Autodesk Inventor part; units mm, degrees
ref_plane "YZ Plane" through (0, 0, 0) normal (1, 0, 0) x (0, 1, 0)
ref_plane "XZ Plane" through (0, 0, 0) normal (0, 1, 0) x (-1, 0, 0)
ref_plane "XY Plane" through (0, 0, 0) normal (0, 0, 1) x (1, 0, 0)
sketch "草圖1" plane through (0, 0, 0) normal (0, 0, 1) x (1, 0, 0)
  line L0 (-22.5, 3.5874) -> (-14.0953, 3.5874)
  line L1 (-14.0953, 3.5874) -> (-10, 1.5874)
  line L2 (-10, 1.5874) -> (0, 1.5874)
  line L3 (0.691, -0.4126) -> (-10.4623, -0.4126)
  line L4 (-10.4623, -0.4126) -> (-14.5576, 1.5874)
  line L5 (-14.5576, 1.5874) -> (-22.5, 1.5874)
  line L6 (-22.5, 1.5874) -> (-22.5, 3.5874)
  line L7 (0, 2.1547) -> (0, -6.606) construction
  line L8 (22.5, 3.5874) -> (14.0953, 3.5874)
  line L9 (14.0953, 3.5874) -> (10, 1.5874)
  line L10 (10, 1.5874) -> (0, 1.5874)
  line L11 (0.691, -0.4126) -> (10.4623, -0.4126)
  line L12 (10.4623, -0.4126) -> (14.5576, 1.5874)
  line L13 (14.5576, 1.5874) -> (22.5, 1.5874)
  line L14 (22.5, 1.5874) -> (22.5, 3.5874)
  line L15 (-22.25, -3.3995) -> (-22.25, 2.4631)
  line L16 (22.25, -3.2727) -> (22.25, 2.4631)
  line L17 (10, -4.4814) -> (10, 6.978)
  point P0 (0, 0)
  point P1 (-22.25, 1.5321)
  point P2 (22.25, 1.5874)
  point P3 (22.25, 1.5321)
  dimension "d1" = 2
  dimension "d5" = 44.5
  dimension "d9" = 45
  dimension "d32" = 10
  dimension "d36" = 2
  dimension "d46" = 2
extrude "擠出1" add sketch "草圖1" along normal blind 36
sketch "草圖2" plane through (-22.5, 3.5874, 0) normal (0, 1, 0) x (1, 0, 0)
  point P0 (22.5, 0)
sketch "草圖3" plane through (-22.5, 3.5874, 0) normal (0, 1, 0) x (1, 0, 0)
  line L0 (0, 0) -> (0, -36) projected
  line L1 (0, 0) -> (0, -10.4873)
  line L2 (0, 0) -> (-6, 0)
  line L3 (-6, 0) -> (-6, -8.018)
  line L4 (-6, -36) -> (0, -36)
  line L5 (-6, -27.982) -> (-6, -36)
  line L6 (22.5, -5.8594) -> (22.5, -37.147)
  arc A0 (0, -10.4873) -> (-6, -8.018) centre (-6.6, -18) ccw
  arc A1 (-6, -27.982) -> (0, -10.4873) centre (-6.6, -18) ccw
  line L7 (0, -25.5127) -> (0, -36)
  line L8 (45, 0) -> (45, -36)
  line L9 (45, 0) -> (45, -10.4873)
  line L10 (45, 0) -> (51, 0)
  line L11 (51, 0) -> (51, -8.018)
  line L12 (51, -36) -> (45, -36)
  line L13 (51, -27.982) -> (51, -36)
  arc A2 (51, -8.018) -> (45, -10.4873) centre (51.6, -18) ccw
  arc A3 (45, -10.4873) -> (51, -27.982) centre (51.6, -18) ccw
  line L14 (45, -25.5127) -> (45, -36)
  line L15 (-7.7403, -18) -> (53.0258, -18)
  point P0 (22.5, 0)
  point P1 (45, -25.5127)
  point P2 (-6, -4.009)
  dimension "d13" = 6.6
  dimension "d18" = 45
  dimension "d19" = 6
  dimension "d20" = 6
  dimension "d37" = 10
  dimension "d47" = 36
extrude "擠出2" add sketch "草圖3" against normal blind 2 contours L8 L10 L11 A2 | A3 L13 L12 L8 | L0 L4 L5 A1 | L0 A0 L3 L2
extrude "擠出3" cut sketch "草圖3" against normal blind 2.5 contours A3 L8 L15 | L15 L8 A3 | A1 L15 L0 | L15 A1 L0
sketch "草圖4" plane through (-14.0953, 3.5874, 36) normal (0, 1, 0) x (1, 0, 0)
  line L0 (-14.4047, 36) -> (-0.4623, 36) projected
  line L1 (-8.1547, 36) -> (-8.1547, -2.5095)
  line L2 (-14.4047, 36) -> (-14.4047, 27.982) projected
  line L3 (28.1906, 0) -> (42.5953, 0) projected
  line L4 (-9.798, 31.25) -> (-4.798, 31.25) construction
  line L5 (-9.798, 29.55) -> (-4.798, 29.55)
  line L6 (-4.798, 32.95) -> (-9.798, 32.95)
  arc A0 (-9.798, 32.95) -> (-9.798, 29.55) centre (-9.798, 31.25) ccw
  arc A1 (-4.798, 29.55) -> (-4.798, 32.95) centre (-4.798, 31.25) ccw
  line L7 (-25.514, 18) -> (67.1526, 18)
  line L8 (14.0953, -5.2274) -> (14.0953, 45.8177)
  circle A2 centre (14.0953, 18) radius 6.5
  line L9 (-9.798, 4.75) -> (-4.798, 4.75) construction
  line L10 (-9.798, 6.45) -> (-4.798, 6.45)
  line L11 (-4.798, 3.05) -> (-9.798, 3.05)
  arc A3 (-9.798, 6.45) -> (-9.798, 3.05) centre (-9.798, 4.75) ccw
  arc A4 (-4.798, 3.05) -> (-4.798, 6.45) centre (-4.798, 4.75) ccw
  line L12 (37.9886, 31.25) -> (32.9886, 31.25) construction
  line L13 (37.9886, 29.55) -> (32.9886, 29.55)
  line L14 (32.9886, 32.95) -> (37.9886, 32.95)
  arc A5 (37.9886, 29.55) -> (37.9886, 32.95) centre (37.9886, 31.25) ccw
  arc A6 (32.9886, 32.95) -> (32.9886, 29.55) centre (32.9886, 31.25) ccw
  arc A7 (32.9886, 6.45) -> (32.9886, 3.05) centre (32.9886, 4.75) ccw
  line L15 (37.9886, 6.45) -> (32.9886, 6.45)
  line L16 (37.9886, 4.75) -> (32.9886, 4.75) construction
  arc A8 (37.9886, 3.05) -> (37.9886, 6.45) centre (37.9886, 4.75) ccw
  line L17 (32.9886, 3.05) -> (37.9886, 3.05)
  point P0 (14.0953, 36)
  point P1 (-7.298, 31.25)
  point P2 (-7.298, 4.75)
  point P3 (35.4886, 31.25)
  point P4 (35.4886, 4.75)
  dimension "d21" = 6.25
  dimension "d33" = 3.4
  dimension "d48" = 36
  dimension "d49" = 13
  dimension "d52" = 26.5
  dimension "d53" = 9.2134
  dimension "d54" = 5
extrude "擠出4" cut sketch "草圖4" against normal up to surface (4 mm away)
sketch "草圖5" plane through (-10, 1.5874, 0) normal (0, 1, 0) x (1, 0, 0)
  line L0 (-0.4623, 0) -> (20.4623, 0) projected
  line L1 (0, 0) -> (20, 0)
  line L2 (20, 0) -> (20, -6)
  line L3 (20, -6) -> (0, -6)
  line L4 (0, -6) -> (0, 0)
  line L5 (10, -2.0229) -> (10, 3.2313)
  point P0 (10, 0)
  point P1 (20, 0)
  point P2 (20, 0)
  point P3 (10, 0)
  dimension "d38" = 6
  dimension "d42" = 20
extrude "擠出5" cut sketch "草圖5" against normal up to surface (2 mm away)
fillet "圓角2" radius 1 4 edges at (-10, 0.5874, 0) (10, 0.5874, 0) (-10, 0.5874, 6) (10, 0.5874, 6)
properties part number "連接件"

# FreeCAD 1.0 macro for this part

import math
import FreeCAD as App
import Part
import Sketcher
from FreeCAD import Vector
Q = App.Units.Quantity


def edges_at(feature, points):
    """Names of the edges that pass closest to the given points."""
    edges = feature.Shape.Edges
    near = lambda p: min(range(len(edges)), key=lambda i: edges[i].distToShape(Part.Vertex(*p))[0])
    return sorted({f"Edge{near(p) + 1}" for p in points})


def add_polygon(sketch, points):
    """Adds a closed chain of lines whose ends are joined by coincident constraints."""
    first, n = sketch.GeometryCount, len(points)
    for a, b in zip(points, points[1:] + points[:1]):
        sketch.addGeometry(Part.LineSegment(App.Vector(*a, 0), App.Vector(*b, 0)), False)
    for i in range(n):
        sketch.addConstraint(Sketcher.Constraint("Coincident", first + i, 2, first + (i + 1) % n, 1))

doc = App.newDocument("Part")
body = doc.addObject("PartDesign::Body", "Body")

sketch1 = body.newObject("Sketcher::SketchObject", "Sketch")
sketch1.AttachmentSupport = (doc.getObject("XY_Plane"), [""])
sketch1.MapMode = "FlatFace"
add_polygon(sketch1, [(-14.0953, 3.5874), (-22.5, 3.5874), (-22.5, 1.5874), (-14.5576, 1.5874), (-10.4623, -0.4126), (10.4623, -0.4126), (14.5576, 1.5874), (22.5, 1.5874), (22.5, 3.5874), (14.0953, 3.5874), (10, 1.5874), (-10, 1.5874)])
sketch1.addConstraint(Sketcher.Constraint("Horizontal", 0))
sketch1.addConstraint(Sketcher.Constraint("Vertical", 1))
sketch1.addConstraint(Sketcher.Constraint("Horizontal", 2))
sketch1.addConstraint(Sketcher.Constraint("Horizontal", 4))
sketch1.addConstraint(Sketcher.Constraint("Horizontal", 6))
sketch1.addConstraint(Sketcher.Constraint("Vertical", 7))
sketch1.addConstraint(Sketcher.Constraint("Horizontal", 8))
sketch1.addConstraint(Sketcher.Constraint("Horizontal", 10))
sketch1.addConstraint(Sketcher.Constraint("Symmetric", 2, 2, 5, 2, -2))
sketch1.addConstraint(Sketcher.Constraint("Symmetric", 0, 2, 7, 2, -2))
sketch1.addConstraint(Sketcher.Constraint("Parallel", 5, 9))
sketch1.addConstraint(Sketcher.Constraint("Parallel", 3, 11))
sketch1.addConstraint(Sketcher.Constraint("Horizontal", 6, 2, 9, 2))
sketch1.addConstraint(Sketcher.Constraint("Equal", 0, 8))
sketch1.addConstraint(Sketcher.Constraint("Equal", 3, 5))
sketch1.addConstraint(Sketcher.Constraint("Equal", 5, 9))
sketch1.addConstraint(Sketcher.Constraint("DistanceY", 1, 2, 1, 1, Q("2 mm")))
sketch1.addConstraint(Sketcher.Constraint("DistanceX", -1, 1, 9, 2, Q("10 mm")))
sketch1.addConstraint(Sketcher.Constraint("DistanceX", 1, 2, 6, 2, Q("45 mm")))
sketch1.addConstraint(Sketcher.Constraint("Angle", 3, Q("-26.0293 deg")))
sketch1.addConstraint(Sketcher.Constraint("DistanceX", 2, 2, 4, 2, Q("25.02 mm")))
sketch1.addConstraint(Sketcher.Constraint("DistanceY", -1, 1, 0, 2, Q("3.5874 mm")))
pad1 = body.newObject("PartDesign::Pad", "Pad")
pad1.Profile = sketch1
pad1.Length = 36

sketch2 = body.newObject("Sketcher::SketchObject", "Sketch001")
sketch2.AttachmentSupport = (doc.getObject("XZ_Plane"), [""])
sketch2.MapMode = "FlatFace"
sketch2.AttachmentOffset = App.Placement(Vector(0, 0, -3.5874), App.Rotation())
sketch2.addGeometry(Part.LineSegment(Vector(22.5, 0, 0), Vector(22.5, 10.4873, 0)), False)
sketch2.addGeometry(Part.ArcOfCircle(Part.Circle(Vector(29.1, 18, 0), Vector(0, 0, 1), 10.000033), math.radians(-131.299706), math.radians(-93.439807)), False)
sketch2.addGeometry(Part.LineSegment(Vector(28.5, 8.018, 0), Vector(28.5, 0, 0)), False)
sketch2.addGeometry(Part.LineSegment(Vector(28.5, 0, 0), Vector(22.5, 0, 0)), False)
sketch2.addGeometry(Part.ArcOfCircle(Part.Circle(Vector(29.1, 18, 0), Vector(0, 0, 1), 10.000016), math.radians(93.439807), math.radians(131.299706)), False)
sketch2.addGeometry(Part.LineSegment(Vector(22.5, 25.5127, 0), Vector(22.5, 36, 0)), False)
sketch2.addGeometry(Part.LineSegment(Vector(22.5, 36, 0), Vector(28.5, 36, 0)), False)
sketch2.addGeometry(Part.LineSegment(Vector(28.5, 36, 0), Vector(28.5, 27.982, 0)), False)
sketch2.addGeometry(Part.LineSegment(Vector(-22.5, 36, 0), Vector(-22.5, 25.5127, 0)), False)
sketch2.addGeometry(Part.ArcOfCircle(Part.Circle(Vector(-29.1, 18, 0), Vector(0, 0, 1), 10.000033), math.radians(48.700294), math.radians(86.560193)), False)
sketch2.addGeometry(Part.LineSegment(Vector(-28.5, 27.982, 0), Vector(-28.5, 36, 0)), False)
sketch2.addGeometry(Part.LineSegment(Vector(-28.5, 36, 0), Vector(-22.5, 36, 0)), False)
sketch2.addGeometry(Part.LineSegment(Vector(-22.5, 10.4873, 0), Vector(-22.5, 0, 0)), False)
sketch2.addGeometry(Part.LineSegment(Vector(-22.5, 0, 0), Vector(-28.5, 0, 0)), False)
sketch2.addGeometry(Part.LineSegment(Vector(-28.5, 0, 0), Vector(-28.5, 8.018, 0)), False)
sketch2.addGeometry(Part.ArcOfCircle(Part.Circle(Vector(-29.1, 18, 0), Vector(0, 0, 1), 10.000016), math.radians(-86.560193), math.radians(-48.700294)), False)
sketch2.addConstraint(Sketcher.Constraint("Coincident", 0, 2, 1, 1))
sketch2.addConstraint(Sketcher.Constraint("Coincident", 1, 2, 2, 1))
sketch2.addConstraint(Sketcher.Constraint("Coincident", 2, 2, 3, 1))
sketch2.addConstraint(Sketcher.Constraint("Coincident", 3, 2, 0, 1))
sketch2.addConstraint(Sketcher.Constraint("Coincident", 4, 2, 5, 1))
sketch2.addConstraint(Sketcher.Constraint("Coincident", 5, 2, 6, 1))
sketch2.addConstraint(Sketcher.Constraint("Coincident", 6, 2, 7, 1))
sketch2.addConstraint(Sketcher.Constraint("Coincident", 7, 2, 4, 1))
sketch2.addConstraint(Sketcher.Constraint("Coincident", 8, 2, 9, 1))
sketch2.addConstraint(Sketcher.Constraint("Coincident", 9, 2, 10, 1))
sketch2.addConstraint(Sketcher.Constraint("Coincident", 10, 2, 11, 1))
sketch2.addConstraint(Sketcher.Constraint("Coincident", 11, 2, 8, 1))
sketch2.addConstraint(Sketcher.Constraint("Coincident", 12, 2, 13, 1))
sketch2.addConstraint(Sketcher.Constraint("Coincident", 13, 2, 14, 1))
sketch2.addConstraint(Sketcher.Constraint("Coincident", 14, 2, 15, 1))
sketch2.addConstraint(Sketcher.Constraint("Coincident", 15, 2, 12, 1))
sketch2.addConstraint(Sketcher.Constraint("Vertical", 0))
sketch2.addConstraint(Sketcher.Constraint("Vertical", 2))
sketch2.addConstraint(Sketcher.Constraint("Horizontal", 3))
sketch2.addConstraint(Sketcher.Constraint("Vertical", 5))
sketch2.addConstraint(Sketcher.Constraint("Horizontal", 6))
sketch2.addConstraint(Sketcher.Constraint("Vertical", 7))
sketch2.addConstraint(Sketcher.Constraint("Vertical", 8))
sketch2.addConstraint(Sketcher.Constraint("Vertical", 10))
sketch2.addConstraint(Sketcher.Constraint("Horizontal", 11))
sketch2.addConstraint(Sketcher.Constraint("Vertical", 12))
sketch2.addConstraint(Sketcher.Constraint("Horizontal", 13))
sketch2.addConstraint(Sketcher.Constraint("Vertical", 14))
sketch2.addConstraint(Sketcher.Constraint("Coincident", 4, 3, 1, 3))
sketch2.addConstraint(Sketcher.Constraint("Coincident", 15, 3, 9, 3))
sketch2.addConstraint(Sketcher.Constraint("Equal", 1, 4))
sketch2.addConstraint(Sketcher.Constraint("Equal", 4, 9))
sketch2.addConstraint(Sketcher.Constraint("Equal", 9, 15))
sketch2.addConstraint(Sketcher.Constraint("Symmetric", 3, 2, 12, 2, -1, 1))
sketch2.addConstraint(Sketcher.Constraint("Symmetric", 1, 3, 9, 3, -2))
sketch2.addConstraint(Sketcher.Constraint("Symmetric", 6, 2, 10, 2, -2))
sketch2.addConstraint(Sketcher.Constraint("Symmetric", 2, 2, 13, 2, -2))
sketch2.addConstraint(Sketcher.Constraint("Horizontal", 4, 2, 8, 2))
sketch2.addConstraint(Sketcher.Constraint("Vertical", 3, 2, 4, 2))
sketch2.addConstraint(Sketcher.Constraint("Vertical", 2, 2, 6, 2))
sketch2.addConstraint(Sketcher.Constraint("Equal", 0, 5))
sketch2.addConstraint(Sketcher.Constraint("Radius", 1, Q("10 mm")))
sketch2.addConstraint(Sketcher.Constraint("DistanceX", 3, 2, 3, 1, Q("6 mm")))
sketch2.addConstraint(Sketcher.Constraint("DistanceY", -1, 1, 5, 2, Q("36 mm")))
sketch2.addConstraint(Sketcher.Constraint("DistanceX", 8, 2, 4, 2, Q("45 mm")))
sketch2.addConstraint(Sketcher.Constraint("DistanceX", 0, 2, 1, 3, Q("6.6 mm")))
pad2 = body.newObject("PartDesign::Pad", "Pad001")
pad2.Profile = sketch2
pad2.Length = 2

sketch3 = body.newObject("Sketcher::SketchObject", "Sketch002")
sketch3.AttachmentSupport = (doc.getObject("XZ_Plane"), [""])
sketch3.MapMode = "FlatFace"
sketch3.AttachmentOffset = App.Placement(Vector(0, 0, -3.5874), App.Rotation())
sketch3.addGeometry(Part.ArcOfCircle(Part.Circle(Vector(29.1, 18, 0), Vector(0, 0, 1), 10.000016), math.radians(131.299706), math.radians(228.700294)), False)
sketch3.addGeometry(Part.LineSegment(Vector(22.5, 10.4873, 0), Vector(22.5, 25.5127, 0)), False)
sketch3.addGeometry(Part.LineSegment(Vector(-22.5, 10.4873, 0), Vector(-22.5, 25.5127, 0)), False)
sketch3.addGeometry(Part.ArcOfCircle(Part.Circle(Vector(-29.1, 18, 0), Vector(0, 0, 1), 10.000033), math.radians(-48.700294), math.radians(48.700294)), False)
sketch3.addConstraint(Sketcher.Constraint("Coincident", 0, 1, 1, 2))
sketch3.addConstraint(Sketcher.Constraint("Coincident", 1, 1, 0, 2))
sketch3.addConstraint(Sketcher.Constraint("Coincident", 2, 1, 3, 1))
sketch3.addConstraint(Sketcher.Constraint("Coincident", 3, 2, 2, 2))
sketch3.addConstraint(Sketcher.Constraint("Vertical", 1))
sketch3.addConstraint(Sketcher.Constraint("Vertical", 2))
sketch3.addConstraint(Sketcher.Constraint("Equal", 0, 3))
sketch3.addConstraint(Sketcher.Constraint("Symmetric", 0, 3, 3, 3, -2))
sketch3.addConstraint(Sketcher.Constraint("Horizontal", 1, 1, 2, 1))
sketch3.addConstraint(Sketcher.Constraint("Radius", 0, Q("10 mm")))
sketch3.addConstraint(Sketcher.Constraint("DistanceX", 2, 1, 1, 1, Q("45 mm")))
sketch3.addConstraint(Sketcher.Constraint("DistanceX", 0, 1, 0, 3, Q("6.6 mm")))
sketch3.addConstraint(Sketcher.Constraint("DistanceY", -1, 1, 0, 3, Q("18 mm")))
pocket1 = body.newObject("PartDesign::Pocket", "Pocket")
pocket1.Profile = sketch3
pocket1.Length = 2.5
pocket1.Reversed = True

sketch4 = body.newObject("Sketcher::SketchObject", "Sketch003")
sketch4.AttachmentSupport = (doc.getObject("XZ_Plane"), [""])
sketch4.MapMode = "FlatFace"
sketch4.AttachmentOffset = App.Placement(Vector(0, 0, -3.5874), App.Rotation())
sketch4.addGeometry(Part.LineSegment(Vector(-18.8933, 3.05, 0), Vector(-23.8933, 3.05, 0)), False)
sketch4.addGeometry(Part.ArcOfCircle(Part.Circle(Vector(-23.8933, 4.75, 0), Vector(0, 0, 1), 1.7), math.radians(90), math.radians(270)), False)
sketch4.addGeometry(Part.LineSegment(Vector(-23.8933, 6.45, 0), Vector(-18.8933, 6.45, 0)), False)
sketch4.addGeometry(Part.ArcOfCircle(Part.Circle(Vector(-18.8933, 4.75, 0), Vector(0, 0, 1), 1.7), math.radians(-90), math.radians(90)), False)
sketch4.addGeometry(Part.Circle(Vector(0, 18, 0), Vector(0, 0, 1), 6.5), False)
sketch4.addGeometry(Part.LineSegment(Vector(-18.8933, 29.55, 0), Vector(-23.8933, 29.55, 0)), False)
sketch4.addGeometry(Part.ArcOfCircle(Part.Circle(Vector(-23.8933, 31.25, 0), Vector(0, 0, 1), 1.7), math.radians(90), math.radians(270)), False)
sketch4.addGeometry(Part.LineSegment(Vector(-23.8933, 32.95, 0), Vector(-18.8933, 32.95, 0)), False)
sketch4.addGeometry(Part.ArcOfCircle(Part.Circle(Vector(-18.8933, 31.25, 0), Vector(0, 0, 1), 1.7), math.radians(-90), math.radians(90)), False)
sketch4.addGeometry(Part.LineSegment(Vector(18.8933, 6.45, 0), Vector(23.8933, 6.45, 0)), False)
sketch4.addGeometry(Part.ArcOfCircle(Part.Circle(Vector(23.8933, 4.75, 0), Vector(0, 0, 1), 1.7), math.radians(-90), math.radians(90)), False)
sketch4.addGeometry(Part.LineSegment(Vector(23.8933, 3.05, 0), Vector(18.8933, 3.05, 0)), False)
sketch4.addGeometry(Part.ArcOfCircle(Part.Circle(Vector(18.8933, 4.75, 0), Vector(0, 0, 1), 1.7), math.radians(90), math.radians(270)), False)
sketch4.addGeometry(Part.LineSegment(Vector(23.8933, 29.55, 0), Vector(18.8933, 29.55, 0)), False)
sketch4.addGeometry(Part.ArcOfCircle(Part.Circle(Vector(18.8933, 31.25, 0), Vector(0, 0, 1), 1.7), math.radians(90), math.radians(270)), False)
sketch4.addGeometry(Part.LineSegment(Vector(18.8933, 32.95, 0), Vector(23.8933, 32.95, 0)), False)
sketch4.addGeometry(Part.ArcOfCircle(Part.Circle(Vector(23.8933, 31.25, 0), Vector(0, 0, 1), 1.7), math.radians(-90), math.radians(90)), False)
sketch4.addConstraint(Sketcher.Constraint("Tangent", 0, 2, 1, 2))
sketch4.addConstraint(Sketcher.Constraint("Tangent", 1, 1, 2, 1))
sketch4.addConstraint(Sketcher.Constraint("Tangent", 2, 2, 3, 2))
sketch4.addConstraint(Sketcher.Constraint("Tangent", 3, 1, 0, 1))
sketch4.addConstraint(Sketcher.Constraint("Tangent", 5, 2, 6, 2))
sketch4.addConstraint(Sketcher.Constraint("Tangent", 6, 1, 7, 1))
sketch4.addConstraint(Sketcher.Constraint("Tangent", 7, 2, 8, 2))
sketch4.addConstraint(Sketcher.Constraint("Tangent", 8, 1, 5, 1))
sketch4.addConstraint(Sketcher.Constraint("Tangent", 9, 2, 10, 2))
sketch4.addConstraint(Sketcher.Constraint("Tangent", 10, 1, 11, 1))
sketch4.addConstraint(Sketcher.Constraint("Tangent", 11, 2, 12, 2))
sketch4.addConstraint(Sketcher.Constraint("Tangent", 12, 1, 9, 1))
sketch4.addConstraint(Sketcher.Constraint("Tangent", 13, 2, 14, 2))
sketch4.addConstraint(Sketcher.Constraint("Tangent", 14, 1, 15, 1))
sketch4.addConstraint(Sketcher.Constraint("Tangent", 15, 2, 16, 2))
sketch4.addConstraint(Sketcher.Constraint("Tangent", 16, 1, 13, 1))
sketch4.addConstraint(Sketcher.Constraint("Horizontal", 0))
sketch4.addConstraint(Sketcher.Constraint("Horizontal", 2))
sketch4.addConstraint(Sketcher.Constraint("Horizontal", 5))
sketch4.addConstraint(Sketcher.Constraint("Horizontal", 7))
sketch4.addConstraint(Sketcher.Constraint("Horizontal", 9))
sketch4.addConstraint(Sketcher.Constraint("Horizontal", 11))
sketch4.addConstraint(Sketcher.Constraint("Horizontal", 13))
sketch4.addConstraint(Sketcher.Constraint("Horizontal", 15))
sketch4.addConstraint(Sketcher.Constraint("Equal", 3, 6))
sketch4.addConstraint(Sketcher.Constraint("Equal", 8, 10))
sketch4.addConstraint(Sketcher.Constraint("Equal", 12, 14))
sketch4.addConstraint(Sketcher.Constraint("Symmetric", 1, 3, 10, 3, -2))
sketch4.addConstraint(Sketcher.Constraint("Symmetric", 8, 3, 14, 3, -2))
sketch4.addConstraint(Sketcher.Constraint("PointOnObject", 4, 3, -2))
sketch4.addConstraint(Sketcher.Constraint("Vertical", 1, 3, 6, 3))
sketch4.addConstraint(Sketcher.Constraint("Vertical", 3, 3, 8, 3))
sketch4.addConstraint(Sketcher.Constraint("Vertical", 12, 3, 14, 3))
sketch4.addConstraint(Sketcher.Constraint("Vertical", 10, 3, 16, 3))
sketch4.addConstraint(Sketcher.Constraint("Diameter", 4, Q("13 mm")))
sketch4.addConstraint(Sketcher.Constraint("Radius", 1, Q("1.7 mm")))
sketch4.addConstraint(Sketcher.Constraint("DistanceX", 0, 2, 0, 1, Q("5 mm")))
sketch4.addConstraint(Sketcher.Constraint("DistanceY", 1, 3, 6, 3, Q("26.5 mm")))
sketch4.addConstraint(Sketcher.Constraint("DistanceY", -1, 1, 4, 3, Q("18 mm")))
sketch4.addConstraint(Sketcher.Constraint("DistanceY", -1, 1, 1, 3, Q("4.75 mm")))
sketch4.addConstraint(Sketcher.Constraint("DistanceX", 1, 3, -1, 1, Q("23.8933 mm")))
pocket2 = body.newObject("PartDesign::Pocket", "Pocket001")
pocket2.Profile = sketch4
pocket2.Length = 4
pocket2.Reversed = True

sketch5 = body.newObject("Sketcher::SketchObject", "Sketch004")
sketch5.AttachmentSupport = (doc.getObject("XZ_Plane"), [""])
sketch5.MapMode = "FlatFace"
sketch5.AttachmentOffset = App.Placement(Vector(0, 0, -1.5874), App.Rotation())
add_polygon(sketch5, [(10, 0), (-10, 0), (-10, 6), (10, 6)])
sketch5.addConstraint(Sketcher.Constraint("Horizontal", 0))
sketch5.addConstraint(Sketcher.Constraint("Vertical", 1))
sketch5.addConstraint(Sketcher.Constraint("Horizontal", 2))
sketch5.addConstraint(Sketcher.Constraint("Vertical", 3))
sketch5.addConstraint(Sketcher.Constraint("Symmetric", 0, 2, 3, 2, -1, 1))
sketch5.addConstraint(Sketcher.Constraint("DistanceX", 0, 2, 0, 1, Q("20 mm")))
sketch5.addConstraint(Sketcher.Constraint("DistanceY", 1, 1, 1, 2, Q("6 mm")))
pocket3 = body.newObject("PartDesign::Pocket", "Pocket002")
pocket3.Profile = sketch5
pocket3.Length = 2
pocket3.Reversed = True
doc.recompute()

fillet = body.newObject("PartDesign::Fillet", "Fillet")
fillet.Base = (pocket3, edges_at(pocket3, [
    (-10, 0.587, 0),
    (10, 0.587, 0),
    (-10, 0.587, 6),
    (10, 0.587, 6),
]))
fillet.Radius = 1

doc.recompute()
